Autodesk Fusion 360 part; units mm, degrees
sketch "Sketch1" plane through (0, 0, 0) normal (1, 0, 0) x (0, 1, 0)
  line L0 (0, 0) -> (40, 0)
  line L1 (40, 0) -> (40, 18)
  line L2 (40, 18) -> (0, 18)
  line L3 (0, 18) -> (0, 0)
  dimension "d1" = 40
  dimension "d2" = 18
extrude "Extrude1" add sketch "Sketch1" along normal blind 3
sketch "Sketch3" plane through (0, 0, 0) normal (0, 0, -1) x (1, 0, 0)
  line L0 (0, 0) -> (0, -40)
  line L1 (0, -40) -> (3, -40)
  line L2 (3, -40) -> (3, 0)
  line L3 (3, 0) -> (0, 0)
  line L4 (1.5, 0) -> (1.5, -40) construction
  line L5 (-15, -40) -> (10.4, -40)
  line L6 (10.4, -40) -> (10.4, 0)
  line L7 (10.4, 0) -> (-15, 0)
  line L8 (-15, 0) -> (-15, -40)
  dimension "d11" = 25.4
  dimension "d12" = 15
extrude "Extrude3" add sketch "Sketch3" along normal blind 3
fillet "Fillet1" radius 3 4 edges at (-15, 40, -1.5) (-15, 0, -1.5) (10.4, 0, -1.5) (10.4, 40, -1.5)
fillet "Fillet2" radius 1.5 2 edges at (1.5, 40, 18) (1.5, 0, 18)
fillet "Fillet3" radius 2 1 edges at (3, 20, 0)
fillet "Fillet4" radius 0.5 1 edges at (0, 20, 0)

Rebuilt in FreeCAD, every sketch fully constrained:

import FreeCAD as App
import Part
import Sketcher
Q = App.Units.Quantity


def edges_at(feature, points):
    """Names of the edges that pass closest to the given points."""
    edges = feature.Shape.Edges
    near = lambda p: min(range(len(edges)), key=lambda i: edges[i].distToShape(Part.Vertex(*p))[0])
    return sorted({f"Edge{near(p) + 1}" for p in points})


def add_polygon(sketch, points):
    """Adds a closed chain of lines whose ends are joined by coincident constraints."""
    first, n = sketch.GeometryCount, len(points)
    for a, b in zip(points, points[1:] + points[:1]):
        sketch.addGeometry(Part.LineSegment(App.Vector(*a, 0), App.Vector(*b, 0)), False)
    for i in range(n):
        sketch.addConstraint(Sketcher.Constraint("Coincident", first + i, 2, first + (i + 1) % n, 1))

doc = App.newDocument("Part")
body = doc.addObject("PartDesign::Body", "Body")

# Sketch on YZ plane
sketch1 = body.newObject("Sketcher::SketchObject", "Sketch")
sketch1.AttachmentSupport = (doc.getObject("YZ_Plane"), [""])
sketch1.MapMode = "FlatFace"
add_polygon(sketch1, [(0, 18), (0, 0), (40, 0), (40, 18)])  # lines 0-3
sketch1.addConstraint([
    Sketcher.Constraint("Vertical", 0),
    Sketcher.Constraint("Horizontal", 1),
    Sketcher.Constraint("Vertical", 2),
    Sketcher.Constraint("Horizontal", 3),
    Sketcher.Constraint("Coincident", 0, 2, -1, 1),
    Sketcher.Constraint("DistanceX", 1, 1, 1, 2, Q("40 mm")),
    Sketcher.Constraint("DistanceY", 0, 2, 0, 1, Q("18 mm")),
])
pad1 = body.newObject("PartDesign::Pad", "Pad")
pad1.Profile = sketch1
pad1.Length = 3

# Sketch on XY plane
sketch2 = body.newObject("Sketcher::SketchObject", "Sketch001")
sketch2.AttachmentSupport = (doc.getObject("XY_Plane"), [""])
sketch2.MapMode = "FlatFace"
add_polygon(sketch2, [(-15, 0), (-15, 40), (10, 40), (10, 0)])  # lines 0-3
sketch2.addConstraint([
    Sketcher.Constraint("Vertical", 0),
    Sketcher.Constraint("Horizontal", 1),
    Sketcher.Constraint("Vertical", 2),
    Sketcher.Constraint("Horizontal", 3),
    Sketcher.Constraint("PointOnObject", 2, 2, -1),
    Sketcher.Constraint("DistanceX", 1, 1, 1, 2, Q("25.4 mm")),
    Sketcher.Constraint("DistanceX", 0, 2, -1, 1, Q("15 mm")),
    Sketcher.Constraint("DistanceY", 0, 1, 0, 2, Q("40 mm")),
])
pad2 = body.newObject("PartDesign::Pad", "Pad001")
pad2.Profile = sketch2
pad2.Length = 3
pad2.Reversed = True
doc.recompute()

fillet = body.newObject("PartDesign::Fillet", "Fillet")
fillet.Base = (pad2, edges_at(pad2, [
    (-15, 40, -1.5),
    (-15, 0, -1.5),
    (10.4, 0, -1.5),
    (10.4, 40, -1.5),
]))
fillet.Radius = 3
doc.recompute()

fillet2 = body.newObject("PartDesign::Fillet", "Fillet001")
fillet2.Base = (fillet, edges_at(fillet, [(1.5, 40, 18), (1.5, 0, 18)]))
fillet2.Radius = 1.5
doc.recompute()

fillet3 = body.newObject("PartDesign::Fillet", "Fillet002")
fillet3.Base = (fillet2, edges_at(fillet2, [(3, 20, 0)]))
fillet3.Radius = 2
doc.recompute()

fillet4 = body.newObject("PartDesign::Fillet", "Fillet003")
fillet4.Base = (fillet3, edges_at(fillet3, [(0, 20, 0)]))
fillet4.Radius = 0.5

doc.recompute()
